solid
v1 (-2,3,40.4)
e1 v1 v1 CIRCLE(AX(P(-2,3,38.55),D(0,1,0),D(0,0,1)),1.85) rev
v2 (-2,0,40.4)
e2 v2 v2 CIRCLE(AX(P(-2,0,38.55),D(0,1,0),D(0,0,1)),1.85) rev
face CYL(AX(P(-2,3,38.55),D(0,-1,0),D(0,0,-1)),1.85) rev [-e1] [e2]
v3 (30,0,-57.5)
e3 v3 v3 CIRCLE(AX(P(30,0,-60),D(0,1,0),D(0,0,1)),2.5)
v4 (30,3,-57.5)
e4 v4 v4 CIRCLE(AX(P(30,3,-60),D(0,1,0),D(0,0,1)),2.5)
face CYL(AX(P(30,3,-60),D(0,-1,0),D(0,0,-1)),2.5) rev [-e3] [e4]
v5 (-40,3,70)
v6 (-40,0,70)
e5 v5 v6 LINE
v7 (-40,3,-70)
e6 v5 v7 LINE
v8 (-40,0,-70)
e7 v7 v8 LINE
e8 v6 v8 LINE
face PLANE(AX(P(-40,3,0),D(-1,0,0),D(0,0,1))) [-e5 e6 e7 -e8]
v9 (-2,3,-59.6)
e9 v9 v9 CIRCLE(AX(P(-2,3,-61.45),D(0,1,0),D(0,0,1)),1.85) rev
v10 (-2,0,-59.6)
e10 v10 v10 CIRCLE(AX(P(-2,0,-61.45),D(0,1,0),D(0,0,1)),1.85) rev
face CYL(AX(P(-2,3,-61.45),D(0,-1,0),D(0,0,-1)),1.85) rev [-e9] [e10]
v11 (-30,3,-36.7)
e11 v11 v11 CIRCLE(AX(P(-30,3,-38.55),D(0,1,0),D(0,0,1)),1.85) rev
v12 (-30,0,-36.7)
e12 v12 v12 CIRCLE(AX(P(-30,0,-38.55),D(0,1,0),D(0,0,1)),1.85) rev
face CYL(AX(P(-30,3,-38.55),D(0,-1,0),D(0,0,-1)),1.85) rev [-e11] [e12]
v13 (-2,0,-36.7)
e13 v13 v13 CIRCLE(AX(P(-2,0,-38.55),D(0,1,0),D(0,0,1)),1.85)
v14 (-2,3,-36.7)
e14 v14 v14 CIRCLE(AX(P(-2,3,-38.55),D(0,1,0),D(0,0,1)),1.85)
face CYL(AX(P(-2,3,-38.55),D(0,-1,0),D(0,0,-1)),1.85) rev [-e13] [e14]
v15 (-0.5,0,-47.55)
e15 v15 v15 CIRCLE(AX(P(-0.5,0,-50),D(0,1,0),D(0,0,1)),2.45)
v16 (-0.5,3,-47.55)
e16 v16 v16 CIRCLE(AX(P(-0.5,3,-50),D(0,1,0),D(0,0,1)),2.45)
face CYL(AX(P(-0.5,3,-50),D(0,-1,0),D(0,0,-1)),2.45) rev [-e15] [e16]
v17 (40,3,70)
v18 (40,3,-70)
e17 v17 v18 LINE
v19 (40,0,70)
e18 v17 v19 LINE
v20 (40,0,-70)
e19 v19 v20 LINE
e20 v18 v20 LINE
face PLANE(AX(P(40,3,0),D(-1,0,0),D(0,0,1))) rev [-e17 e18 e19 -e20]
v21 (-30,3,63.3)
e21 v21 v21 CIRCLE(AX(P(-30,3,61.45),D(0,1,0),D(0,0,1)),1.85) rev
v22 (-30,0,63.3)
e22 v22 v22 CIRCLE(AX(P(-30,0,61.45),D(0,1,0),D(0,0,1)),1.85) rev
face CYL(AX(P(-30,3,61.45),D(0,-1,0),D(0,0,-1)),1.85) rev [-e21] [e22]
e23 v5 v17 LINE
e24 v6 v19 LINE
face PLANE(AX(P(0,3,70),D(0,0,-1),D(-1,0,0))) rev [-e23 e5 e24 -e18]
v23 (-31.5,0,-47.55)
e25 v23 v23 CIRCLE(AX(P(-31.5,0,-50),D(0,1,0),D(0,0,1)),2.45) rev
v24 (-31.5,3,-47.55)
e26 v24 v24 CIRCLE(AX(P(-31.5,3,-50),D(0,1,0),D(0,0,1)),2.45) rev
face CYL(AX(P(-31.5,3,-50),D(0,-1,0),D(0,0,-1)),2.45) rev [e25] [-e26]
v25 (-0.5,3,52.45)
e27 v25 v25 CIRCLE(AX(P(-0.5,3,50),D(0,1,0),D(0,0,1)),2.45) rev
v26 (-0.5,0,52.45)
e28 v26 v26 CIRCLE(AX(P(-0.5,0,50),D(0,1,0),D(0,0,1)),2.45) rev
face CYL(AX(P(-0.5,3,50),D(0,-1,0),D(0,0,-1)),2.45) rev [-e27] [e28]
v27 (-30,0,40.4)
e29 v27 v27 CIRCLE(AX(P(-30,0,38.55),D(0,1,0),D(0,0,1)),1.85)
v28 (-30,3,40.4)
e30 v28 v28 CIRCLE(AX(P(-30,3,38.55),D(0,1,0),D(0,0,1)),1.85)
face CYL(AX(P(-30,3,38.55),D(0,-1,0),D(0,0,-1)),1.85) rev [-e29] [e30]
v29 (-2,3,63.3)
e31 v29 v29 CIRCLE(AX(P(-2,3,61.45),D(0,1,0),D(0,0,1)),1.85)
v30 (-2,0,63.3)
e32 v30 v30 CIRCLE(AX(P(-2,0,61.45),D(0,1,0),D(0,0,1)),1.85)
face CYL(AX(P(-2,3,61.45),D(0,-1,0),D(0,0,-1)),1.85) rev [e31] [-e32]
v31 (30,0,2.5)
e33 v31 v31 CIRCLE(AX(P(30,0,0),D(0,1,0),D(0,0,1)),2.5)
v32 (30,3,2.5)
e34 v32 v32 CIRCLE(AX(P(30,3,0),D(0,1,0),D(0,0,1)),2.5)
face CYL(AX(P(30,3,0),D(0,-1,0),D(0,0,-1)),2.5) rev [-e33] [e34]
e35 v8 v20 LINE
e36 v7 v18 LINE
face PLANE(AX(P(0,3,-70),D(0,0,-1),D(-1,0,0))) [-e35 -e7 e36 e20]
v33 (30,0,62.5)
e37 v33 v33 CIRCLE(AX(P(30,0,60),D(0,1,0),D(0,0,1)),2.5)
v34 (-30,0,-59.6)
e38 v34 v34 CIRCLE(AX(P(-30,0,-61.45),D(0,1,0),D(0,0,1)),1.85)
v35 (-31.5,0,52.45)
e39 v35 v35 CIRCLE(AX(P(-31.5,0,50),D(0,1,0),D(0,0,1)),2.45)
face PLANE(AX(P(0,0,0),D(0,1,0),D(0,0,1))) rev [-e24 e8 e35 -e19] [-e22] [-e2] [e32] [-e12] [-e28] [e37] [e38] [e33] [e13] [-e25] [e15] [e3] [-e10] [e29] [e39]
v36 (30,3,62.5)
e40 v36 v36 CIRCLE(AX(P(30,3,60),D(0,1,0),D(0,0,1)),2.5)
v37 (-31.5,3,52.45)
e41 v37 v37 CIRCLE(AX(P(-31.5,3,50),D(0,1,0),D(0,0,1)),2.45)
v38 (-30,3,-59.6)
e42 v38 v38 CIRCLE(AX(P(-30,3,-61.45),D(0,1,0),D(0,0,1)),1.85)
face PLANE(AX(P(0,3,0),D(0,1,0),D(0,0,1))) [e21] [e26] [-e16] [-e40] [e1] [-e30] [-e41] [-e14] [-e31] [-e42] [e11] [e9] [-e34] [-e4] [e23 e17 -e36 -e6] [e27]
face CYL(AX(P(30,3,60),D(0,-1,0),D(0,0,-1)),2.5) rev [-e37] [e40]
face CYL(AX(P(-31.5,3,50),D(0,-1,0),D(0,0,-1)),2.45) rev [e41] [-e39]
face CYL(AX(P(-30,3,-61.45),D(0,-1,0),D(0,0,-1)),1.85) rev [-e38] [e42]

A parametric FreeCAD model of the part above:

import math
import FreeCAD as App
import Part
import Sketcher
Q = App.Units.Quantity


def add_polygon(sketch, points):
    """Adds a closed chain of lines whose ends are joined by coincident constraints."""
    first, n = sketch.GeometryCount, len(points)
    for a, b in zip(points, points[1:] + points[:1]):
        sketch.addGeometry(Part.LineSegment(App.Vector(*a, 0), App.Vector(*b, 0)), False)
    for i in range(n):
        sketch.addConstraint(Sketcher.Constraint("Coincident", first + i, 2, first + (i + 1) % n, 1))

doc = App.newDocument("Part")
body = doc.addObject("PartDesign::Body", "Body")

sketch1 = body.newObject("Sketcher::SketchObject", "Sketch")
sketch1.AttachmentSupport = (doc.getObject("XZ_Plane"), [""])
sketch1.MapMode = "FlatFace"
add_polygon(sketch1, [(40, 70), (40, -70), (-40, -70), (-40, 70)])
sketch1.addGeometry(Part.ArcOfCircle(Part.Circle(App.Vector(30, -60, 0), App.Vector(0, 0, 1), 2.5), math.radians(0), math.radians(270)), False)
sketch1.addGeometry(Part.ArcOfCircle(Part.Circle(App.Vector(30, -60, 0), App.Vector(0, 0, 1), 2.5), math.radians(-90), math.radians(0)), False)
sketch1.addGeometry(Part.Circle(App.Vector(30, 60, 0), App.Vector(0, 0, 1), 2.5), False)
sketch1.addGeometry(Part.Circle(App.Vector(30, 0, 0), App.Vector(0, 0, 1), 2.5), False)
sketch1.addGeometry(Part.Circle(App.Vector(-0.5, 50, 0), App.Vector(0, 0, 1), 2.5), False)
sketch1.addGeometry(Part.Circle(App.Vector(-2, 38.5, 0), App.Vector(0, 0, 1), 1.9), False)
sketch1.addGeometry(Part.Circle(App.Vector(-30, 61.5, 0), App.Vector(0, 0, 1), 1.9), False)
sketch1.addGeometry(Part.Circle(App.Vector(-2, 61.5, 0), App.Vector(0, 0, 1), 1.9), False)
sketch1.addGeometry(Part.Circle(App.Vector(-31.5, 50, 0), App.Vector(0, 0, 1), 2.5), False)
sketch1.addGeometry(Part.Circle(App.Vector(-30, 38.5, 0), App.Vector(0, 0, 1), 1.9), False)
sketch1.addGeometry(Part.Circle(App.Vector(-2, -61.5, 0), App.Vector(0, 0, 1), 1.9), False)
sketch1.addGeometry(Part.ArcOfCircle(Part.Circle(App.Vector(-30, -61.5, 0), App.Vector(0, 0, 1), 1.9), math.radians(0), math.radians(180)), False)
sketch1.addGeometry(Part.ArcOfCircle(Part.Circle(App.Vector(-30, -61.4, 0), App.Vector(0, 0, 1), 1.9), math.radians(-180), math.radians(-90)), False)
sketch1.addGeometry(Part.ArcOfCircle(Part.Circle(App.Vector(-30, -61.4, 0), App.Vector(0, 0, 1), 1.9), math.radians(-90), math.radians(0)), False)
sketch1.addGeometry(Part.Circle(App.Vector(-0.5, -50, 0), App.Vector(0, 0, 1), 2.5), False)
sketch1.addGeometry(Part.Circle(App.Vector(-30, -38.5, 0), App.Vector(0, 0, 1), 1.9), False)
sketch1.addGeometry(Part.Circle(App.Vector(-2, -38.5, 0), App.Vector(0, 0, 1), 1.9), False)
sketch1.addGeometry(Part.Circle(App.Vector(-31.5, -50, 0), App.Vector(0, 0, 1), 2.5), False)
sketch1.addConstraint(Sketcher.Constraint("Tangent", 4, 1, 5, 2))
sketch1.addConstraint(Sketcher.Constraint("Coincident", 5, 1, 4, 2))
sketch1.addConstraint(Sketcher.Constraint("Tangent", 15, 2, 16, 1))
sketch1.addConstraint(Sketcher.Constraint("Tangent", 16, 2, 17, 1))
sketch1.addConstraint(Sketcher.Constraint("Tangent", 17, 2, 15, 1))
sketch1.addConstraint(Sketcher.Constraint("Vertical", 0))
sketch1.addConstraint(Sketcher.Constraint("Horizontal", 1))
sketch1.addConstraint(Sketcher.Constraint("Vertical", 2))
sketch1.addConstraint(Sketcher.Constraint("Horizontal", 3))
sketch1.addConstraint(Sketcher.Constraint("Equal", 5, 6))
sketch1.addConstraint(Sketcher.Constraint("Equal", 6, 7))
sketch1.addConstraint(Sketcher.Constraint("Equal", 9, 10))
sketch1.addConstraint(Sketcher.Constraint("Equal", 10, 11))
sketch1.addConstraint(Sketcher.Constraint("Equal", 8, 12))
sketch1.addConstraint(Sketcher.Constraint("Equal", 11, 13))
sketch1.addConstraint(Sketcher.Constraint("Equal", 13, 14))
sketch1.addConstraint(Sketcher.Constraint("Equal", 14, 15))
sketch1.addConstraint(Sketcher.Constraint("Equal", 12, 18))
sketch1.addConstraint(Sketcher.Constraint("Equal", 17, 19))
sketch1.addConstraint(Sketcher.Constraint("Equal", 19, 20))
sketch1.addConstraint(Sketcher.Constraint("Equal", 18, 21))
sketch1.addConstraint(Sketcher.Constraint("Symmetric", 0, 2, 2, 2, -1, 1))
sketch1.addConstraint(Sketcher.Constraint("Symmetric", 4, 3, 6, 3, -1))
sketch1.addConstraint(Sketcher.Constraint("Symmetric", 11, 3, 14, 3, -1))
sketch1.addConstraint(Sketcher.Constraint("Symmetric", 10, 3, 15, 3, -1))
sketch1.addConstraint(Sketcher.Constraint("Symmetric", 8, 3, 18, 3, -1))
sketch1.addConstraint(Sketcher.Constraint("Symmetric", 13, 3, 19, 3, -1))
sketch1.addConstraint(Sketcher.Constraint("Symmetric", 9, 3, 20, 3, -1))
sketch1.addConstraint(Sketcher.Constraint("Symmetric", 12, 3, 21, 3, -1))
sketch1.addConstraint(Sketcher.Constraint("PointOnObject", 7, 3, -1))
sketch1.addConstraint(Sketcher.Constraint("Horizontal", 10, 3, 11, 3))
sketch1.addConstraint(Sketcher.Constraint("Horizontal", 8, 3, 12, 3))
sketch1.addConstraint(Sketcher.Constraint("Horizontal", 9, 3, 13, 3))
sketch1.addConstraint(Sketcher.Constraint("Horizontal", 5, 3, 4, 1))
sketch1.addConstraint(Sketcher.Constraint("Horizontal", 17, 3, 15, 2))
sketch1.addConstraint(Sketcher.Constraint("Horizontal", 15, 2, 17, 2))
sketch1.addConstraint(Sketcher.Constraint("Vertical", 6, 3, 7, 3))
sketch1.addConstraint(Sketcher.Constraint("Vertical", 9, 3, 11, 3))
sketch1.addConstraint(Sketcher.Constraint("Vertical", 10, 3, 13, 3))
sketch1.addConstraint(Sketcher.Constraint("Vertical", 7, 3, 5, 1))
sketch1.addConstraint(Sketcher.Constraint("Vertical", 19, 3, 16, 2))
sketch1.addConstraint(Sketcher.Constraint("Diameter", 6, Q("5 mm")))
sketch1.addConstraint(Sketcher.Constraint("Diameter", 8, Q("4.9 mm")))
sketch1.addConstraint(Sketcher.Constraint("Diameter", 9, Q("3.7 mm")))
sketch1.addConstraint(Sketcher.Constraint("DistanceX", 1, 2, 1, 1, Q("80 mm")))
sketch1.addConstraint(Sketcher.Constraint("DistanceY", 0, 2, 0, 1, Q("140 mm")))
sketch1.addConstraint(Sketcher.Constraint("DistanceX", -1, 1, 4, 3, Q("30 mm")))
sketch1.addConstraint(Sketcher.Constraint("DistanceY", 4, 3, -1, 1, Q("60 mm")))
sketch1.addConstraint(Sketcher.Constraint("DistanceY", -1, 1, 8, 3, Q("50 mm")))
sketch1.addConstraint(Sketcher.Constraint("DistanceX", 9, 3, -1, 1, Q("2 mm")))
sketch1.addConstraint(Sketcher.Constraint("DistanceX", 10, 3, -1, 1, Q("30 mm")))
sketch1.addConstraint(Sketcher.Constraint("DistanceX", 12, 3, 8, 3, Q("31 mm")))
sketch1.addConstraint(Sketcher.Constraint("DistanceY", 14, 3, 9, 3, Q("100 mm")))
sketch1.addConstraint(Sketcher.Constraint("DistanceX", 18, 3, 4, 1, Q("33 mm")))
sketch1.addConstraint(Sketcher.Constraint("DistanceY", 16, 2, -1, 1, Q("63.3 mm")))
pad1 = body.newObject("PartDesign::Pad", "Pad")
pad1.Profile = sketch1
pad1.Length = 3
pad1.Reversed = True

doc.recompute()
